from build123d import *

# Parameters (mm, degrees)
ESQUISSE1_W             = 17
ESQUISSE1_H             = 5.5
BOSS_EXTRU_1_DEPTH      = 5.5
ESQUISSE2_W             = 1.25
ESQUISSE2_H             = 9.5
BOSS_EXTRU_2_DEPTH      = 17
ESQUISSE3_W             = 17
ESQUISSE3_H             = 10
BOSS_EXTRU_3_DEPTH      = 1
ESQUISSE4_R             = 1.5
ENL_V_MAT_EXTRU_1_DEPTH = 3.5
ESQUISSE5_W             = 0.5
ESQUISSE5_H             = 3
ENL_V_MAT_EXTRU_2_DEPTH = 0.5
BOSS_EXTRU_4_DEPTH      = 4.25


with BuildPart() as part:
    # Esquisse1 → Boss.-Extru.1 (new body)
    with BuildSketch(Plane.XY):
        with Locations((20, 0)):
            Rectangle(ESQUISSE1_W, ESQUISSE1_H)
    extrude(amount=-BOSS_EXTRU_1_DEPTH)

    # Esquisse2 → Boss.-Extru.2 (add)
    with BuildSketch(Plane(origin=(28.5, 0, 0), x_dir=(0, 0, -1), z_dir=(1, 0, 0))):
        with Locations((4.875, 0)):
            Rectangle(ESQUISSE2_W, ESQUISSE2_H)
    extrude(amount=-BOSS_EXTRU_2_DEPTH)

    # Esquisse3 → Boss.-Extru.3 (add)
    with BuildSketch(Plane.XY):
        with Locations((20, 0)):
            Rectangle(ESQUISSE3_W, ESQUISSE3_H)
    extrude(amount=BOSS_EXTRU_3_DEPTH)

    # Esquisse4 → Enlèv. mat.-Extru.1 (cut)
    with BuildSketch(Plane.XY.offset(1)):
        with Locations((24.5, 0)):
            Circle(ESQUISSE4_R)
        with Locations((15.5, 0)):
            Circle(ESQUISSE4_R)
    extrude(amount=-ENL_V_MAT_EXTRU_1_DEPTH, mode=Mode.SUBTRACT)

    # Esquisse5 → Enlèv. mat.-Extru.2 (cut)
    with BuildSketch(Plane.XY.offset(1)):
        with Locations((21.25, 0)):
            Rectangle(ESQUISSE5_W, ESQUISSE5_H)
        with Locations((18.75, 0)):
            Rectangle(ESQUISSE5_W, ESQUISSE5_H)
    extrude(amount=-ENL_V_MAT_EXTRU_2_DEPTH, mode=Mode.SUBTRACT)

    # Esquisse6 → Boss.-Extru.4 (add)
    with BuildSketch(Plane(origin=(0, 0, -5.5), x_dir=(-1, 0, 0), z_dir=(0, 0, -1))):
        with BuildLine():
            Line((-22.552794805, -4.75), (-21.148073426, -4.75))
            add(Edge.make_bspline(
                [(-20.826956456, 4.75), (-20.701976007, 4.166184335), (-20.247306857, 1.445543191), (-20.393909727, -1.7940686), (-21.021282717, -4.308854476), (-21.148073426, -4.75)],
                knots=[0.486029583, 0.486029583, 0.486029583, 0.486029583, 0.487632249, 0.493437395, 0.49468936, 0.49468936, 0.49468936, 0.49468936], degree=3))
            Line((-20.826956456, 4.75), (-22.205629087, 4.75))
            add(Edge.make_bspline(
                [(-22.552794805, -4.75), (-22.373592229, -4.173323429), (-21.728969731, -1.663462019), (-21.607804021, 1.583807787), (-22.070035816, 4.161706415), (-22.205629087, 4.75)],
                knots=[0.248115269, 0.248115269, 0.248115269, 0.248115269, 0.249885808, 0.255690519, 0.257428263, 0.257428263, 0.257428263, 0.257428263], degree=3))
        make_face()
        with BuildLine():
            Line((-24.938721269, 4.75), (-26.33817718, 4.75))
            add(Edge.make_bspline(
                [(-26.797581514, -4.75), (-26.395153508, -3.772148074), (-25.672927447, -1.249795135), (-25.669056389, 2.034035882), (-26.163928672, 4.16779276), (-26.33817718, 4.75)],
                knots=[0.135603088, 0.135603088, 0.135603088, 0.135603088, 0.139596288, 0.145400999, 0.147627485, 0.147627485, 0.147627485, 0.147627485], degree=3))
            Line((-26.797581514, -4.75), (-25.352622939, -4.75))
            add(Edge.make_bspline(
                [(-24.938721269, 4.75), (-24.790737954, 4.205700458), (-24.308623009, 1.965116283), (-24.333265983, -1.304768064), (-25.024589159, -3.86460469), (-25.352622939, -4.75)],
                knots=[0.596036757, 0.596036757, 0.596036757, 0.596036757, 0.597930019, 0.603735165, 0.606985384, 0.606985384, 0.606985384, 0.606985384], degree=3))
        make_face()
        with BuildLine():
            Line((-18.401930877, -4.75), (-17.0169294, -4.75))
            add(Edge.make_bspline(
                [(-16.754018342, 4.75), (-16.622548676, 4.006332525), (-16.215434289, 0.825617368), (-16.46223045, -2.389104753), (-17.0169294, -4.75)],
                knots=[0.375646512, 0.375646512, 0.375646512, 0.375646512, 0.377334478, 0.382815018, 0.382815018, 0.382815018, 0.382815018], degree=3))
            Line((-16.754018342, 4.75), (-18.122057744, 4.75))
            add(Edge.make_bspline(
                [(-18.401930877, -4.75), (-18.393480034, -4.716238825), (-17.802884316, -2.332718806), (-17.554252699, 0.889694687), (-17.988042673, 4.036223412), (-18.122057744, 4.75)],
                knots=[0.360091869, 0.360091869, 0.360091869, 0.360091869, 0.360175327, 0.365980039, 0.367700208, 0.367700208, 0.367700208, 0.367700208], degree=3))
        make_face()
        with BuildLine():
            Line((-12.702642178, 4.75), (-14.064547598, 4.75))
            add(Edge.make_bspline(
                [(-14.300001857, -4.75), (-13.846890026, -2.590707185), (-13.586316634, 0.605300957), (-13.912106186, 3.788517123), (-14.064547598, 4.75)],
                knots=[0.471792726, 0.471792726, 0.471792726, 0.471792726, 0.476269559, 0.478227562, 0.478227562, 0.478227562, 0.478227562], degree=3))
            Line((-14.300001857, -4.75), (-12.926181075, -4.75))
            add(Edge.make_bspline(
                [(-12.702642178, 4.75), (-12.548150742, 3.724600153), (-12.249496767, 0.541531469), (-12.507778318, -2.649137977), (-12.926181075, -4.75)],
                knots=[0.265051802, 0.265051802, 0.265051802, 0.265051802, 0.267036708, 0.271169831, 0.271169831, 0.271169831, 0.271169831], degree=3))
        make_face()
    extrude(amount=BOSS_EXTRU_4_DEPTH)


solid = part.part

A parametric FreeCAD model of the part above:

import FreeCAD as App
import Part
import Sketcher

V = App.Vector
Q = App.Units.Quantity


def add_polygon(sketch, points):
    """Adds a closed chain of lines whose ends are joined by coincident constraints."""
    first, n = sketch.GeometryCount, len(points)
    for a, b in zip(points, points[1:] + points[:1]):
        sketch.addGeometry(Part.LineSegment(App.Vector(*a, 0), App.Vector(*b, 0)), False)
    for i in range(n):
        sketch.addConstraint(Sketcher.Constraint("Coincident", first + i, 2, first + (i + 1) % n, 1))

doc = App.newDocument("Part")
body = doc.addObject("PartDesign::Body", "Body")

# Sketch on XY plane
sketch1 = doc.addObject("Sketcher::SketchObject", "Sketch")
body.addObject(sketch1)
sketch1.AttachmentSupport = (doc.XY_Plane, [""])
sketch1.MapMode = "FlatFace"
add_polygon(sketch1, [(12, 3), (12, -3), (28, -3), (28, 3)])  # lines 0-3
sketch1.addConstraint([
    Sketcher.Constraint("Vertical", 0),
    Sketcher.Constraint("Horizontal", 1),
    Sketcher.Constraint("Vertical", 2),
    Sketcher.Constraint("Horizontal", 3),
    Sketcher.Constraint("DistanceX", 1, 1, 1, 2, Q("17 mm")),
    Sketcher.Constraint("DistanceY", 0, 2, 0, 1, Q("5.5 mm")),
    Sketcher.Constraint("DistanceX", -1, 1, 0, 2, Q("11.5 mm")),
    Sketcher.Constraint("DistanceY", 0, 2, -1, 1, Q("2.75 mm")),
])
pad1 = doc.addObject("PartDesign::Pad", "Pad")
body.addObject(pad1)
pad1.Profile = sketch1
pad1.Length = 5.5
pad1.Reversed = True

# Sketch on YZ plane
sketch2 = doc.addObject("Sketcher::SketchObject", "Sketch001")
body.addObject(sketch2)
sketch2.AttachmentSupport = (doc.YZ_Plane, [""])
sketch2.MapMode = "FlatFace"
sketch2.AttachmentOffset = App.Placement(V(0, 0, 28.5), App.Rotation())
add_polygon(sketch2, [(4.8, -4.2), (-4.8, -4.2), (-4.8, -5.5), (4.8, -5.5)])  # lines 0-3
sketch2.addConstraint([
    Sketcher.Constraint("Horizontal", 0),
    Sketcher.Constraint("Vertical", 1),
    Sketcher.Constraint("Horizontal", 2),
    Sketcher.Constraint("Vertical", 3),
    Sketcher.Constraint("DistanceX", 0, 2, 0, 1, Q("9.5 mm")),
    Sketcher.Constraint("DistanceY", 1, 2, 1, 1, Q("1.25 mm")),
    Sketcher.Constraint("DistanceY", 1, 2, -1, 1, Q("5.5 mm")),
    Sketcher.Constraint("DistanceX", 0, 2, -1, 1, Q("4.75 mm")),
])
pad2 = doc.addObject("PartDesign::Pad", "Pad001")
body.addObject(pad2)
pad2.Profile = sketch2
pad2.Length = 17
pad2.Reversed = True

# Sketch on XY plane
sketch3 = doc.addObject("Sketcher::SketchObject", "Sketch002")
body.addObject(sketch3)
sketch3.AttachmentSupport = (doc.XY_Plane, [""])
sketch3.MapMode = "FlatFace"
add_polygon(sketch3, [(12, 5), (12, -5), (28, -5), (28, 5)])  # lines 0-3
sketch3.addConstraint([
    Sketcher.Constraint("Vertical", 0),
    Sketcher.Constraint("Horizontal", 1),
    Sketcher.Constraint("Vertical", 2),
    Sketcher.Constraint("Horizontal", 3),
    Sketcher.Constraint("DistanceX", 1, 1, 1, 2, Q("17 mm")),
    Sketcher.Constraint("DistanceY", 0, 2, 0, 1, Q("10 mm")),
    Sketcher.Constraint("DistanceY", 0, 2, -1, 1, Q("5 mm")),
    Sketcher.Constraint("DistanceX", -1, 1, 0, 2, Q("11.5 mm")),
])
pad3 = doc.addObject("PartDesign::Pad", "Pad002")
body.addObject(pad3)
pad3.Profile = sketch3
pad3.Length = 1

# Sketch on XY plane
sketch4 = doc.addObject("Sketcher::SketchObject", "Sketch003")
body.addObject(sketch4)
sketch4.AttachmentSupport = (doc.XY_Plane, [""])
sketch4.MapMode = "FlatFace"
sketch4.AttachmentOffset = App.Placement(V(0, 0, 1), App.Rotation())
sketch4.addGeometry([
    Part.Circle(V(24.5, 0, 0), V(0, 0, 1), 1.5),
    Part.Circle(V(15.5, 0, 0), V(0, 0, 1), 1.5),
], False)
sketch4.addConstraint([
    Sketcher.Constraint("Equal", 0, 1),
    Sketcher.Constraint("PointOnObject", 0, 3, -1),
    Sketcher.Constraint("PointOnObject", 1, 3, -1),
    Sketcher.Constraint("Diameter", 0, Q("3 mm")),
    Sketcher.Constraint("DistanceX", 1, 3, 0, 3, Q("9 mm")),
    Sketcher.Constraint("DistanceX", -1, 1, 0, 3, Q("24.5 mm")),
])
pocket1 = doc.addObject("PartDesign::Pocket", "Pocket")
body.addObject(pocket1)
pocket1.Profile = sketch4
pocket1.Length = 3.5

# Sketch on XY plane
sketch5 = doc.addObject("Sketcher::SketchObject", "Sketch004")
body.addObject(sketch5)
sketch5.AttachmentSupport = (doc.XY_Plane, [""])
sketch5.MapMode = "FlatFace"
sketch5.AttachmentOffset = App.Placement(V(0, 0, 1), App.Rotation())
add_polygon(sketch5, [(21, 1.5), (21, -1.5), (21.5, -1.5), (21.5, 1.5)])  # lines 0-3
add_polygon(sketch5, [(18.5, 1.5), (18.5, -1.5), (19, -1.5), (19, 1.5)])  # lines 4-7
sketch5.addConstraint([
    Sketcher.Constraint("Vertical", 0),
    Sketcher.Constraint("Horizontal", 1),
    Sketcher.Constraint("Vertical", 2),
    Sketcher.Constraint("Horizontal", 3),
    Sketcher.Constraint("Vertical", 4),
    Sketcher.Constraint("Horizontal", 5),
    Sketcher.Constraint("Vertical", 6),
    Sketcher.Constraint("Horizontal", 7),
    Sketcher.Constraint("Horizontal", 1, 2, 4, 2),
    Sketcher.Constraint("Horizontal", 3, 2, 6, 2),
    Sketcher.Constraint("Equal", 3, 5),
    Sketcher.Constraint("DistanceY", 0, 2, 0, 1, Q("3 mm")),
    Sketcher.Constraint("DistanceX", 1, 1, 1, 2, Q("0.5 mm")),
    Sketcher.Constraint("DistanceX", -1, 1, 0, 2, Q("21 mm")),
    Sketcher.Constraint("DistanceX", -1, 1, 5, 2, Q("19 mm")),
    Sketcher.Constraint("DistanceY", 0, 2, -1, 1, Q("1.5 mm")),
])
pocket2 = doc.addObject("PartDesign::Pocket", "Pocket001")
body.addObject(pocket2)
pocket2.Profile = sketch5
pocket2.Length = 0.5

# Sketch on XY plane
sketch6 = doc.addObject("Sketcher::SketchObject", "Sketch005")
body.addObject(sketch6)
sketch6.AttachmentSupport = (doc.XY_Plane, [""])
sketch6.MapMode = "FlatFace"
sketch6.AttachmentOffset = App.Placement(V(0, 0, -5.5), App.Rotation())
sketch6.addGeometry([
    Part.LineSegment(V(22.552795, -4.75, 0), V(21.148073, -4.75, 0)),  # 0
    Part.BSplineCurve([V(20.826956, 4.75, 0), V(20.701976, 4.166184, 0), V(20.247307, 1.445543, 0), V(20.39391, -1.794069, 0), V(21.021283, -4.308854, 0), V(21.148073, -4.75, 0)], [4, 1, 1, 4], [0.486029583, 0.487632249, 0.493437395, 0.49468936], False, 3, [1, 1, 1, 1, 1, 1], False),  # 1
    Part.LineSegment(V(20.826956, 4.75, 0), V(22.205629, 4.75, 0)),  # 2
    Part.BSplineCurve([V(22.552795, -4.75, 0), V(22.373592, -4.173323, 0), V(21.72897, -1.663462, 0), V(21.607804, 1.583808, 0), V(22.070036, 4.161706, 0), V(22.205629, 4.75, 0)], [4, 1, 1, 4], [0.248115269, 0.249885808, 0.255690519, 0.257428263], False, 3, [1, 1, 1, 1, 1, 1], False),  # 3
    Part.LineSegment(V(24.938721, 4.75, 0), V(26.338177, 4.75, 0)),  # 4
    Part.BSplineCurve([V(26.797582, -4.75, 0), V(26.395154, -3.772148, 0), V(25.672927, -1.249795, 0), V(25.669056, 2.034036, 0), V(26.163929, 4.167793, 0), V(26.338177, 4.75, 0)], [4, 1, 1, 4], [0.135603088, 0.139596288, 0.145400999, 0.147627485], False, 3, [1, 1, 1, 1, 1, 1], False),  # 5
    Part.LineSegment(V(26.797582, -4.75, 0), V(25.352623, -4.75, 0)),  # 6
    Part.BSplineCurve([V(24.938721, 4.75, 0), V(24.790738, 4.2057, 0), V(24.308623, 1.965116, 0), V(24.333266, -1.304768, 0), V(25.024589, -3.864605, 0), V(25.352623, -4.75, 0)], [4, 1, 1, 4], [0.596036757, 0.597930019, 0.603735165, 0.606985384], False, 3, [1, 1, 1, 1, 1, 1], False),  # 7
    Part.LineSegment(V(18.401931, -4.75, 0), V(17.016929, -4.75, 0)),  # 8
    Part.BSplineCurve([V(16.754018, 4.75, 0), V(16.622549, 4.006333, 0), V(16.215434, 0.825617, 0), V(16.46223, -2.389105, 0), V(17.016929, -4.75, 0)], [4, 1, 4], [0.375646512, 0.377334478, 0.382815018], False, 3, [1, 1, 1, 1, 1], False),  # 9
    Part.LineSegment(V(16.754018, 4.75, 0), V(18.122058, 4.75, 0)),  # 10
    Part.BSplineCurve([V(18.401931, -4.75, 0), V(18.39348, -4.716239, 0), V(17.802884, -2.332719, 0), V(17.554253, 0.889695, 0), V(17.988043, 4.036223, 0), V(18.122058, 4.75, 0)], [4, 1, 1, 4], [0.360091869, 0.360175327, 0.365980039, 0.367700208], False, 3, [1, 1, 1, 1, 1, 1], False),  # 11
    Part.LineSegment(V(12.702642, 4.75, 0), V(14.064548, 4.75, 0)),  # 12
    Part.BSplineCurve([V(14.300002, -4.75, 0), V(13.84689, -2.590707, 0), V(13.586317, 0.605301, 0), V(13.912106, 3.788517, 0), V(14.064548, 4.75, 0)], [4, 1, 4], [0.471792726, 0.476269559, 0.478227562], False, 3, [1, 1, 1, 1, 1], False),  # 13
    Part.LineSegment(V(14.300002, -4.75, 0), V(12.926181, -4.75, 0)),  # 14
    Part.BSplineCurve([V(12.702642, 4.75, 0), V(12.548151, 3.7246, 0), V(12.249497, 0.541531, 0), V(12.507778, -2.649138, 0), V(12.926181, -4.75, 0)], [4, 1, 4], [0.265051802, 0.267036708, 0.271169831], False, 3, [1, 1, 1, 1, 1], False),  # 15
], False)
sketch6.addConstraint([
    Sketcher.Constraint("Block", 1),
    Sketcher.Constraint("Block", 3),
    Sketcher.Constraint("Block", 5),
    Sketcher.Constraint("Block", 7),
    Sketcher.Constraint("Block", 9),
    Sketcher.Constraint("Block", 11),
    Sketcher.Constraint("Block", 13),
    Sketcher.Constraint("Block", 15),
    Sketcher.Constraint("Coincident", 0, 2, 1, 2),
    Sketcher.Constraint("Coincident", 1, 1, 2, 1),
    Sketcher.Constraint("Coincident", 2, 2, 3, 2),
    Sketcher.Constraint("Coincident", 3, 1, 0, 1),
    Sketcher.Constraint("Coincident", 4, 2, 5, 2),
    Sketcher.Constraint("Coincident", 5, 1, 6, 1),
    Sketcher.Constraint("Coincident", 6, 2, 7, 2),
    Sketcher.Constraint("Coincident", 7, 1, 4, 1),
    Sketcher.Constraint("Coincident", 8, 2, 9, 2),
    Sketcher.Constraint("Coincident", 9, 1, 10, 1),
    Sketcher.Constraint("Coincident", 10, 2, 11, 2),
    Sketcher.Constraint("Coincident", 11, 1, 8, 1),
    Sketcher.Constraint("Coincident", 12, 2, 13, 2),
    Sketcher.Constraint("Coincident", 13, 1, 14, 1),
    Sketcher.Constraint("Coincident", 14, 2, 15, 2),
    Sketcher.Constraint("Coincident", 15, 1, 12, 1),
])
pad4 = doc.addObject("PartDesign::Pad", "Pad003")
body.addObject(pad4)
pad4.Profile = sketch6
pad4.Length = 4.25
pad4.Reversed = True

doc.recompute()
